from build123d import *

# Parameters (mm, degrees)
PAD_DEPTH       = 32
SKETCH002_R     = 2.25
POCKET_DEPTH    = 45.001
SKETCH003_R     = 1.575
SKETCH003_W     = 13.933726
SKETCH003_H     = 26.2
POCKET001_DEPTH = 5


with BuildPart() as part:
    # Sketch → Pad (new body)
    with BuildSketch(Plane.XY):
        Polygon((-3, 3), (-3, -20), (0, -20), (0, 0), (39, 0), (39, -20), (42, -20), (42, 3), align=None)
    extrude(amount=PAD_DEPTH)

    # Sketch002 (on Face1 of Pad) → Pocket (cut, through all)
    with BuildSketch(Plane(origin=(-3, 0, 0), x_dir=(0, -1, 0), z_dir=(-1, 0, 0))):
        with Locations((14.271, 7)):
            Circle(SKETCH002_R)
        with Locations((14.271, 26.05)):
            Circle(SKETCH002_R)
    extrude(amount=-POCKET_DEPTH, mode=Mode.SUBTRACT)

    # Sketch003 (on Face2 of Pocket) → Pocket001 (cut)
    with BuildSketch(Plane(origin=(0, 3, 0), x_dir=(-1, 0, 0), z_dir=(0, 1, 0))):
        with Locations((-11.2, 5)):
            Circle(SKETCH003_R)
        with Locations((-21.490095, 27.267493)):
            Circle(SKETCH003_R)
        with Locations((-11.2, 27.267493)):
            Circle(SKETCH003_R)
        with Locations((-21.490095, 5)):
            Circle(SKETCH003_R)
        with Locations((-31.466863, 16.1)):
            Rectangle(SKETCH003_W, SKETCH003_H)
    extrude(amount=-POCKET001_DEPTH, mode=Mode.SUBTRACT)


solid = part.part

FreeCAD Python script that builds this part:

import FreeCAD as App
import Part
import Sketcher

doc = App.newDocument("Part")
params = doc.addObject("Spreadsheet::Sheet", "Params")
for row, (alias, value) in enumerate([
    ("sketch1_width", "3 mm"),
    ("sketch1_width2", "39 mm"),
    ("sketch1_height", "23 mm"),
    ("sketch1_height2", "20 mm"),
    ("pad1_length", "32 mm"),
    ("sketch2_diameter", "4.5 mm"),
    ("sketch3_diameter", "3.15 mm"),
    ("sketch3_height", "26.2 mm"),
    ("pocket2_length", "5 mm"),
], start=1):
    params.set(f"A{row}", alias)
    params.set(f"B{row}", "=" + value)
    params.setAlias(f"B{row}", alias)

body = doc.addObject("PartDesign::Body", "Body")

sketch1 = body.newObject("Sketcher::SketchObject", "Sketch")
sketch1.AttachmentSupport = (doc.getObject("XY_Plane"), [""])
sketch1.MapMode = "FlatFace"
sketch1.addGeometry(Part.LineSegment(App.Vector(-3, 3, 0), App.Vector(-3, -20, 0)), False)
sketch1.addGeometry(Part.LineSegment(App.Vector(-3, -20, 0), App.Vector(0, -20, 0)), False)
sketch1.addGeometry(Part.LineSegment(App.Vector(0, -20, 0), App.Vector(0, 0, 0)), False)
sketch1.addGeometry(Part.LineSegment(App.Vector(0, 0, 0), App.Vector(39, 0, 0)), False)
sketch1.addGeometry(Part.LineSegment(App.Vector(39, 0, 0), App.Vector(39, -20, 0)), False)
sketch1.addGeometry(Part.LineSegment(App.Vector(39, -20, 0), App.Vector(42, -20, 0)), False)
sketch1.addGeometry(Part.LineSegment(App.Vector(42, -20, 0), App.Vector(42, 3, 0)), False)
sketch1.addGeometry(Part.LineSegment(App.Vector(42, 3, 0), App.Vector(-3, 3, 0)), False)
sketch1.addConstraint(Sketcher.Constraint("Coincident", 0, 2, 1, 1))
sketch1.addConstraint(Sketcher.Constraint("Coincident", 1, 2, 2, 1))
sketch1.addConstraint(Sketcher.Constraint("Coincident", 2, 2, 3, 1))
sketch1.addConstraint(Sketcher.Constraint("Coincident", 3, 2, 4, 1))
sketch1.addConstraint(Sketcher.Constraint("Coincident", 4, 2, 5, 1))
sketch1.addConstraint(Sketcher.Constraint("Coincident", 5, 2, 6, 1))
sketch1.addConstraint(Sketcher.Constraint("Coincident", 6, 2, 7, 1))
sketch1.addConstraint(Sketcher.Constraint("Coincident", 7, 2, 0, 1))
sketch1.addConstraint(Sketcher.Constraint("Vertical", 0))
sketch1.addConstraint(Sketcher.Constraint("Horizontal", 1))
sketch1.addConstraint(Sketcher.Constraint("Vertical", 2))
sketch1.addConstraint(Sketcher.Constraint("Horizontal", 3))
sketch1.addConstraint(Sketcher.Constraint("Vertical", 4))
sketch1.addConstraint(Sketcher.Constraint("Horizontal", 5))
sketch1.addConstraint(Sketcher.Constraint("Vertical", 6))
sketch1.addConstraint(Sketcher.Constraint("Horizontal", 7))
sketch1.addConstraint(Sketcher.Constraint("Coincident", 2, 2, -1, 1))
sketch1.addConstraint(Sketcher.Constraint("Horizontal", 1, 2, 4, 2))
sketch1.addConstraint(Sketcher.Constraint("Equal", 1, 5))
sketch1.addConstraint(Sketcher.Constraint("DistanceX", 1, 1, 1, 2, 3.0))
sketch1.addConstraint(Sketcher.Constraint("DistanceX", 3, 1, 3, 2, 39.0))
sketch1.addConstraint(Sketcher.Constraint("DistanceY", 0, 2, 0, 1, 23.0))
sketch1.addConstraint(Sketcher.Constraint("DistanceY", 2, 1, 2, 2, 20.0))
sketch1.setExpression("Constraints[19]", "Params.sketch1_width")
sketch1.setExpression("Constraints[20]", "Params.sketch1_width2")
sketch1.setExpression("Constraints[21]", "Params.sketch1_height")
sketch1.setExpression("Constraints[22]", "Params.sketch1_height2")
pad1 = body.newObject("PartDesign::Pad", "Pad")
pad1.Profile = sketch1
pad1.setExpression("Length", "Params.pad1_length")

sketch2 = body.newObject("Sketcher::SketchObject", "Sketch001")
sketch2.AttachmentSupport = (doc.getObject("YZ_Plane"), [""])
sketch2.MapMode = "FlatFace"
sketch2.AttachmentOffset = App.Placement(App.Vector(0, 0, -3), App.Rotation())
sketch2.addGeometry(Part.Circle(App.Vector(-14.3, 7, 0), App.Vector(0, 0, 1), 2.2), False)
sketch2.addGeometry(Part.Circle(App.Vector(-14.3, 26.1, 0), App.Vector(0, 0, 1), 2.2), False)
sketch2.addConstraint(Sketcher.Constraint("Equal", 0, 1))
sketch2.addConstraint(Sketcher.Constraint("Vertical", 0, 3, 1, 3))
sketch2.addConstraint(Sketcher.Constraint("Diameter", 0, 4.5))
sketch2.addConstraint(Sketcher.Constraint("DistanceY", -1, 1, 0, 3, 7.0))
sketch2.addConstraint(Sketcher.Constraint("DistanceY", -1, 1, 1, 3, 26.05))
sketch2.addConstraint(Sketcher.Constraint("DistanceX", 0, 3, -1, 1, 14.271))
sketch2.setExpression("Constraints[2]", "Params.sketch2_diameter")
pocket1 = body.newObject("PartDesign::Pocket", "Pocket")
pocket1.Profile = sketch2
pocket1.Type = "ThroughAll"
pocket1.Reversed = True

sketch3 = body.newObject("Sketcher::SketchObject", "Sketch002")
sketch3.AttachmentSupport = (doc.getObject("XZ_Plane"), [""])
sketch3.MapMode = "FlatFace"
sketch3.AttachmentOffset = App.Placement(App.Vector(0, 0, -3), App.Rotation())
sketch3.addGeometry(Part.Circle(App.Vector(11.2, 5, 0), App.Vector(0, 0, 1), 1.6), False)
sketch3.addGeometry(Part.Circle(App.Vector(21.5, 27.3, 0), App.Vector(0, 0, 1), 1.6), False)
sketch3.addGeometry(Part.Circle(App.Vector(11.2, 27.3, 0), App.Vector(0, 0, 1), 1.6), False)
sketch3.addGeometry(Part.Circle(App.Vector(21.5, 5, 0), App.Vector(0, 0, 1), 1.6), False)
sketch3.addGeometry(Part.LineSegment(App.Vector(38.4, 29.2, 0), App.Vector(38.4, 3, 0)), False)
sketch3.addGeometry(Part.LineSegment(App.Vector(38.4, 3, 0), App.Vector(24.5, 3, 0)), False)
sketch3.addGeometry(Part.LineSegment(App.Vector(24.5, 3, 0), App.Vector(24.5, 29.2, 0)), False)
sketch3.addGeometry(Part.LineSegment(App.Vector(24.5, 29.2, 0), App.Vector(38.4, 29.2, 0)), False)
sketch3.addConstraint(Sketcher.Constraint("Coincident", 4, 2, 5, 1))
sketch3.addConstraint(Sketcher.Constraint("Coincident", 5, 2, 6, 1))
sketch3.addConstraint(Sketcher.Constraint("Coincident", 6, 2, 7, 1))
sketch3.addConstraint(Sketcher.Constraint("Coincident", 7, 2, 4, 1))
sketch3.addConstraint(Sketcher.Constraint("Vertical", 4))
sketch3.addConstraint(Sketcher.Constraint("Horizontal", 5))
sketch3.addConstraint(Sketcher.Constraint("Vertical", 6))
sketch3.addConstraint(Sketcher.Constraint("Horizontal", 7))
sketch3.addConstraint(Sketcher.Constraint("Equal", 0, 1))
sketch3.addConstraint(Sketcher.Constraint("Equal", 1, 2))
sketch3.addConstraint(Sketcher.Constraint("Equal", 2, 3))
sketch3.addConstraint(Sketcher.Constraint("Horizontal", 1, 3, 2, 3))
sketch3.addConstraint(Sketcher.Constraint("Horizontal", 0, 3, 3, 3))
sketch3.addConstraint(Sketcher.Constraint("Vertical", 0, 3, 2, 3))
sketch3.addConstraint(Sketcher.Constraint("Vertical", 1, 3, 3, 3))
sketch3.addConstraint(Sketcher.Constraint("Diameter", 0, 3.15))
sketch3.addConstraint(Sketcher.Constraint("DistanceY", 4, 2, 4, 1, 26.2))
sketch3.addConstraint(Sketcher.Constraint("DistanceY", -1, 1, 0, 3, 5.0))
sketch3.addConstraint(Sketcher.Constraint("DistanceY", -1, 1, 4, 2, 3.0))
sketch3.addConstraint(Sketcher.Constraint("DistanceX", -1, 1, 0, 3, 11.2))
sketch3.addConstraint(Sketcher.Constraint("DistanceX", -1, 1, 5, 2, 24.5))
sketch3.addConstraint(Sketcher.Constraint("DistanceX", 5, 2, 5, 1, 13.933726))
sketch3.addConstraint(Sketcher.Constraint("DistanceX", 3, 3, 4, 2, 16.943631))
sketch3.addConstraint(Sketcher.Constraint("DistanceY", -1, 1, 1, 3, 27.267493))
sketch3.setExpression("Constraints[15]", "Params.sketch3_diameter")
sketch3.setExpression("Constraints[16]", "Params.sketch3_height")
pocket2 = body.newObject("PartDesign::Pocket", "Pocket001")
pocket2.Profile = sketch3
pocket2.setExpression("Length", "Params.pocket2_length")
pocket2.Reversed = True

doc.recompute()
